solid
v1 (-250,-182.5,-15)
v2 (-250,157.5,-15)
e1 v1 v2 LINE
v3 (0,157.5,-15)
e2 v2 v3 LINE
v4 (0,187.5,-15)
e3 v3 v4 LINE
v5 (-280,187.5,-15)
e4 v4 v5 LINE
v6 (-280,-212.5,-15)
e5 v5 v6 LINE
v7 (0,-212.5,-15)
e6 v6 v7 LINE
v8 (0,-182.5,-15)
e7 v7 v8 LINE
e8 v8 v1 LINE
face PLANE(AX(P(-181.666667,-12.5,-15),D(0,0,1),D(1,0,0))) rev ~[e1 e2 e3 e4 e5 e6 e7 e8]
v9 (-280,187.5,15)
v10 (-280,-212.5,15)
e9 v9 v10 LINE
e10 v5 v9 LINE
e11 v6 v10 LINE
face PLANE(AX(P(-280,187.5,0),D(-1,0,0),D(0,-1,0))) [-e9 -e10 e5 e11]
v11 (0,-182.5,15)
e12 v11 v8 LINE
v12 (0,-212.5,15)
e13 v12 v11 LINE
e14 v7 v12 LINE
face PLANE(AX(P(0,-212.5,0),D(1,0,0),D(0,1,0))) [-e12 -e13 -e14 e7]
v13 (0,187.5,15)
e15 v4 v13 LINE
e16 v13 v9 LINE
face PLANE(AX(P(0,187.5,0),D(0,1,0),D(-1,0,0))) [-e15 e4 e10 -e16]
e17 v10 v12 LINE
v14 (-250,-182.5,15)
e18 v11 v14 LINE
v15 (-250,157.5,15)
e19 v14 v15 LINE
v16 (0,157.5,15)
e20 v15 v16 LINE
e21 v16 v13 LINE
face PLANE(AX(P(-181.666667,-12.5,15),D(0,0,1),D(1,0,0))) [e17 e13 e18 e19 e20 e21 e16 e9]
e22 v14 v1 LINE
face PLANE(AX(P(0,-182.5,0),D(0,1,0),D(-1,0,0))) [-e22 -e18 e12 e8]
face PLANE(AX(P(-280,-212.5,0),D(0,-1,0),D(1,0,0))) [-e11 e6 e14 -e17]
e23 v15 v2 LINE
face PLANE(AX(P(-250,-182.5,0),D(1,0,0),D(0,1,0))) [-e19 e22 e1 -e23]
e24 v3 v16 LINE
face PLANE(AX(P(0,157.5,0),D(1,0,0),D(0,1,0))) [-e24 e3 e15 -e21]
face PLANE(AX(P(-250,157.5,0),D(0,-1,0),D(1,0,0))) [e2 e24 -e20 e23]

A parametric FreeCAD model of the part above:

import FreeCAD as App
import Part
import Sketcher

V = App.Vector

doc = App.newDocument("Part")
body = doc.addObject("PartDesign::Body", "Body")

# Sketch on XY plane
sketch1 = doc.addObject("Sketcher::SketchObject", "Sketch")
body.addObject(sketch1)
sketch1.AttachmentSupport = (doc.XY_Plane, [""])
sketch1.MapMode = "FlatFace"
sketch1.addGeometry(Part.LineSegment(V(-250, 158, 0), V(0, 158, 0)), False)
sketch1.addGeometry(Part.LineSegment(V(0, 158, 0), V(0, 188, 0)), False)
sketch1.addGeometry(Part.LineSegment(V(0, 188, 0), V(-280, 188, 0)), False)
sketch1.addGeometry(Part.LineSegment(V(-280, 188, 0), V(-280, -212, 0)), False)
sketch1.addGeometry(Part.LineSegment(V(-280, -212, 0), V(0, -212, 0)), False)
sketch1.addGeometry(Part.LineSegment(V(0, -212, 0), V(0, -182, 0)), False)
sketch1.addGeometry(Part.LineSegment(V(0, -182, 0), V(-250, -182, 0)), False)
sketch1.addGeometry(Part.LineSegment(V(-250, -182, 0), V(-250, 158, 0)), False)
sketch1.addConstraint(Sketcher.Constraint("Coincident", 0, 2, 1, 1))
sketch1.addConstraint(Sketcher.Constraint("Coincident", 1, 2, 2, 1))
sketch1.addConstraint(Sketcher.Constraint("Coincident", 2, 2, 3, 1))
sketch1.addConstraint(Sketcher.Constraint("Coincident", 3, 2, 4, 1))
sketch1.addConstraint(Sketcher.Constraint("Coincident", 4, 2, 5, 1))
sketch1.addConstraint(Sketcher.Constraint("Coincident", 5, 2, 6, 1))
sketch1.addConstraint(Sketcher.Constraint("Coincident", 6, 2, 7, 1))
sketch1.addConstraint(Sketcher.Constraint("Coincident", 7, 2, 0, 1))
sketch1.addConstraint(Sketcher.Constraint("Horizontal", 0))
sketch1.addConstraint(Sketcher.Constraint("Vertical", 1))
sketch1.addConstraint(Sketcher.Constraint("Horizontal", 2))
sketch1.addConstraint(Sketcher.Constraint("Vertical", 3))
sketch1.addConstraint(Sketcher.Constraint("Horizontal", 4))
sketch1.addConstraint(Sketcher.Constraint("Vertical", 5))
sketch1.addConstraint(Sketcher.Constraint("Horizontal", 6))
sketch1.addConstraint(Sketcher.Constraint("Vertical", 7))
sketch1.addConstraint(Sketcher.Constraint("PointOnObject", 0, 2, -2))
sketch1.addConstraint(Sketcher.Constraint("PointOnObject", 4, 2, -2))
sketch1.addConstraint(Sketcher.Constraint("Equal", 1, 5))
sketch1.addConstraint(Sketcher.Constraint("DistanceX", 0, 1, 0, 2, 250.0))
sketch1.addConstraint(Sketcher.Constraint("DistanceX", 2, 2, 2, 1, 280.0))
sketch1.addConstraint(Sketcher.Constraint("DistanceY", 1, 1, 1, 2, 30.0))
sketch1.addConstraint(Sketcher.Constraint("DistanceY", 3, 2, 3, 1, 400.0))
sketch1.addConstraint(Sketcher.Constraint("DistanceY", -1, 1, 0, 2, 157.5))
pad1 = doc.addObject("PartDesign::Pad", "Pad")
body.addObject(pad1)
pad1.Profile = sketch1
pad1.Length = 30
pad1.Midplane = True

doc.recompute()
